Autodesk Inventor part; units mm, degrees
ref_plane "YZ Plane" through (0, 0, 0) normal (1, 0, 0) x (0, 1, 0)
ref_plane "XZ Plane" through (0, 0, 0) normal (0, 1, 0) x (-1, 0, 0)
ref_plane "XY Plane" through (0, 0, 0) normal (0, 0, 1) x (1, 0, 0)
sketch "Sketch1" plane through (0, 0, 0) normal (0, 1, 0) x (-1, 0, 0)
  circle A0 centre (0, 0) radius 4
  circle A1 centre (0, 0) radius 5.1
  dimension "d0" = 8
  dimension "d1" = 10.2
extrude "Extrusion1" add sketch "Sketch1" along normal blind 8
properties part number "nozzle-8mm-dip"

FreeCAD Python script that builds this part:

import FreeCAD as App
import Part
import Sketcher

V = App.Vector

doc = App.newDocument("Part")
body = doc.addObject("PartDesign::Body", "Body")

# Sketch on XZ plane
sketch1 = body.newObject("Sketcher::SketchObject", "Sketch")
sketch1.AttachmentSupport = (doc.getObject("XZ_Plane"), [""])
sketch1.MapMode = "FlatFace"
sketch1.addGeometry([
    Part.Circle(V(0, 0, 0), V(0, 0, 1), 5.1),
    Part.Circle(V(0, 0, 0), V(0, 0, 1), 4),
], False)
sketch1.addConstraint([
    Sketcher.Constraint("Coincident", 0, 3, -1, 1),
    Sketcher.Constraint("Coincident", 1, 3, -1, 1),
    Sketcher.Constraint("Diameter", 1, 8.0),
    Sketcher.Constraint("Diameter", 0, 10.2),
])
pad1 = body.newObject("PartDesign::Pad", "Pad")
pad1.Profile = sketch1
pad1.Length = 8
pad1.Reversed = True

doc.recompute()
